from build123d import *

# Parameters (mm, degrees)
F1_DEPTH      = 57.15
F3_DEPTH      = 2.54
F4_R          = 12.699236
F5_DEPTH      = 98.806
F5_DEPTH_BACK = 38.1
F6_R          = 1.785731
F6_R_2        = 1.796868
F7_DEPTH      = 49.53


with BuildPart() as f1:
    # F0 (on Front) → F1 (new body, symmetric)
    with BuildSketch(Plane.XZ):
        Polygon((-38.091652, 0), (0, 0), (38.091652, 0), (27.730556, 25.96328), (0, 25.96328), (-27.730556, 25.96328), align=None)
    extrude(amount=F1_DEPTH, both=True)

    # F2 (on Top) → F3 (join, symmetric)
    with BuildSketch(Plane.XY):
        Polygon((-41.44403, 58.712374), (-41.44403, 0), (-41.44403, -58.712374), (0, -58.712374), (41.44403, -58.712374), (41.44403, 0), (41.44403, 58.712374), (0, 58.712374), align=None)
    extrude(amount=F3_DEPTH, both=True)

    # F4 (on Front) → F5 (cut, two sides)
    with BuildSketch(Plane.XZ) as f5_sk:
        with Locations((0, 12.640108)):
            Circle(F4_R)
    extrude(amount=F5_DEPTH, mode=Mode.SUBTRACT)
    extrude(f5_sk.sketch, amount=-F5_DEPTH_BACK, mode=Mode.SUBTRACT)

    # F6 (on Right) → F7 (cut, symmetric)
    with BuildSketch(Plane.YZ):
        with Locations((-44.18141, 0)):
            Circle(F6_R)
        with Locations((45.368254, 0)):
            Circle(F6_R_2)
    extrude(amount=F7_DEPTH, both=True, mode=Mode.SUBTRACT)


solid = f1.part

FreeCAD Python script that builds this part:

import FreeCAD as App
import Part
import Sketcher
from FreeCAD import Vector
Q = App.Units.Quantity


def add_polygon(sketch, points):
    """Adds a closed chain of lines whose ends are joined by coincident constraints."""
    first, n = sketch.GeometryCount, len(points)
    for a, b in zip(points, points[1:] + points[:1]):
        sketch.addGeometry(Part.LineSegment(App.Vector(*a, 0), App.Vector(*b, 0)), False)
    for i in range(n):
        sketch.addConstraint(Sketcher.Constraint("Coincident", first + i, 2, first + (i + 1) % n, 1))

doc = App.newDocument("Part")
params = doc.addObject("Spreadsheet::Sheet", "Params")
for row, (alias, value) in enumerate([
    ("pad1_length", "4.5 in"),
    ("pad2_length", "0.2 in"),
    ("pocket1_length", "3.89 in"),
    ("pocket1_length2", "1.5 in"),
    ("pocket2_length", "3.9 in"),
], start=1):
    params.set(f"A{row}", alias)
    params.set(f"B{row}", "=" + value)
    params.setAlias(f"B{row}", alias)

body = doc.addObject("PartDesign::Body", "Body")

# Sketch on XZ plane
sketch1 = body.newObject("Sketcher::SketchObject", "Sketch")
sketch1.AttachmentSupport = (doc.getObject("XZ_Plane"), [""])
sketch1.MapMode = "FlatFace"
add_polygon(sketch1, [(-38, 0), (38, 0), (28, 26), (-28, 26)])  # lines 0-3
sketch1.addConstraint(Sketcher.Constraint("Horizontal", 0))
sketch1.addConstraint(Sketcher.Constraint("Horizontal", 2))
sketch1.addConstraint(Sketcher.Constraint("Symmetric", 0, 2, 3, 2, -1, 1))
sketch1.addConstraint(Sketcher.Constraint("Equal", 1, 3))
sketch1.addConstraint(Sketcher.Constraint("DistanceX", 0, 1, 0, 2, Q("76.183304 mm")))
sketch1.addConstraint(Sketcher.Constraint("DistanceX", 2, 2, 2, 1, Q("55.461112 mm")))
sketch1.addConstraint(Sketcher.Constraint("DistanceY", -1, 1, 1, 2, Q("25.96328 mm")))
pad1 = body.newObject("PartDesign::Pad", "Pad")
pad1.Profile = sketch1
pad1.setExpression("Length", "Params.pad1_length")
pad1.Midplane = True

# Sketch on XY plane
sketch2 = body.newObject("Sketcher::SketchObject", "Sketch001")
sketch2.AttachmentSupport = (doc.getObject("XY_Plane"), [""])
sketch2.MapMode = "FlatFace"
add_polygon(sketch2, [(-41, 59), (-41, -59), (41, -59), (41, 59)])  # lines 0-3
sketch2.addConstraint(Sketcher.Constraint("Vertical", 0))
sketch2.addConstraint(Sketcher.Constraint("Horizontal", 1))
sketch2.addConstraint(Sketcher.Constraint("Vertical", 2))
sketch2.addConstraint(Sketcher.Constraint("Horizontal", 3))
sketch2.addConstraint(Sketcher.Constraint("Symmetric", 0, 2, 2, 2, -1, 1))
sketch2.addConstraint(Sketcher.Constraint("DistanceX", 1, 1, 1, 2, Q("82.88806 mm")))
sketch2.addConstraint(Sketcher.Constraint("DistanceY", 0, 2, 0, 1, Q("117.424748 mm")))
pad2 = body.newObject("PartDesign::Pad", "Pad001")
pad2.Profile = sketch2
pad2.setExpression("Length", "Params.pad2_length")
pad2.Midplane = True

# Sketch on XZ plane
sketch3 = body.newObject("Sketcher::SketchObject", "Sketch002")
sketch3.AttachmentSupport = (doc.getObject("XZ_Plane"), [""])
sketch3.MapMode = "FlatFace"
sketch3.addGeometry(Part.Circle(Vector(0, 13, 0), Vector(0, 0, 1), 13), False)
sketch3.addConstraint(Sketcher.Constraint("PointOnObject", 0, 3, -2))
sketch3.addConstraint(Sketcher.Constraint("Diameter", 0, Q("25.398472 mm")))
sketch3.addConstraint(Sketcher.Constraint("DistanceY", -1, 1, 0, 3, Q("12.640108 mm")))
pocket1 = body.newObject("PartDesign::Pocket", "Pocket")
pocket1.Profile = sketch3
pocket1.Type = "TwoLengths"
pocket1.setExpression("Length", "Params.pocket1_length")
pocket1.setExpression("Length2", "Params.pocket1_length2")
pocket1.Reversed = True

# Sketch on YZ plane
sketch4 = body.newObject("Sketcher::SketchObject", "Sketch003")
sketch4.AttachmentSupport = (doc.getObject("YZ_Plane"), [""])
sketch4.MapMode = "FlatFace"
sketch4.addGeometry(Part.Circle(Vector(-44.2, 0, 0), Vector(0, 0, 1), 1.8), False)
sketch4.addGeometry(Part.Circle(Vector(45.4, 0, 0), Vector(0, 0, 1), 1.8), False)
sketch4.addConstraint(Sketcher.Constraint("PointOnObject", 0, 3, -1))
sketch4.addConstraint(Sketcher.Constraint("PointOnObject", 1, 3, -1))
sketch4.addConstraint(Sketcher.Constraint("Diameter", 0, Q("3.571462 mm")))
sketch4.addConstraint(Sketcher.Constraint("Diameter", 1, Q("3.593736 mm")))
sketch4.addConstraint(Sketcher.Constraint("DistanceX", 0, 3, -1, 1, Q("44.18141 mm")))
sketch4.addConstraint(Sketcher.Constraint("DistanceX", -1, 1, 1, 3, Q("45.368254 mm")))
pocket2 = body.newObject("PartDesign::Pocket", "Pocket001")
pocket2.Profile = sketch4
pocket2.setExpression("Length", "Params.pocket2_length")
pocket2.Midplane = True

doc.recompute()
